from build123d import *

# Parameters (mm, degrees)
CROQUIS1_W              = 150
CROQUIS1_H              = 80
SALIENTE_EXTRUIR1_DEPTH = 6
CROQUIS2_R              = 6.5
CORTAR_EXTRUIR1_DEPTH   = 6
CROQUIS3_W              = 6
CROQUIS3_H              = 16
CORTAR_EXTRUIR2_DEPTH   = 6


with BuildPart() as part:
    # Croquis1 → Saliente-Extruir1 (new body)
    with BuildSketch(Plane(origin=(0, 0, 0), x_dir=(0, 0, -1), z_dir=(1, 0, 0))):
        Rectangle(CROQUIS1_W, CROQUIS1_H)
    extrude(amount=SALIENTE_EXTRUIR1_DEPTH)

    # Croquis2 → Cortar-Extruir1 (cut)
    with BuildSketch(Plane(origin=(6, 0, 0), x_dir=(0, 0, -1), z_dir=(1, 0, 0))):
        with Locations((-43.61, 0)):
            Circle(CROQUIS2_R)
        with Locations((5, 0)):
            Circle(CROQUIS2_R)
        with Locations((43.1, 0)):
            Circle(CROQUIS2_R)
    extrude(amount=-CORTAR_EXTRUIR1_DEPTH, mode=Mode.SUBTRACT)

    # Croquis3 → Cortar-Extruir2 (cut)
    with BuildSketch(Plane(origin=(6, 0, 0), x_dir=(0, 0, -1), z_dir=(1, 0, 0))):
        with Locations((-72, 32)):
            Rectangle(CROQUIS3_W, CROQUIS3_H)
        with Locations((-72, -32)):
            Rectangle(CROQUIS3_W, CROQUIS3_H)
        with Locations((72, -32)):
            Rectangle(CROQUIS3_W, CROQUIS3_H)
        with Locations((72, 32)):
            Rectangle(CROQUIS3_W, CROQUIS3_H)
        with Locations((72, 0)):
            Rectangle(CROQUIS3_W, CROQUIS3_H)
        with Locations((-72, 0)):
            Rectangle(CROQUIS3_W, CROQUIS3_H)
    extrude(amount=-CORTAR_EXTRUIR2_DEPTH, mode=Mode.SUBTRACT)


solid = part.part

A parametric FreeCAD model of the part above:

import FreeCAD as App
import Part
import Sketcher
from FreeCAD import Vector
Q = App.Units.Quantity


def add_polygon(sketch, points):
    """Adds a closed chain of lines whose ends are joined by coincident constraints."""
    first, n = sketch.GeometryCount, len(points)
    for a, b in zip(points, points[1:] + points[:1]):
        sketch.addGeometry(Part.LineSegment(App.Vector(*a, 0), App.Vector(*b, 0)), False)
    for i in range(n):
        sketch.addConstraint(Sketcher.Constraint("Coincident", first + i, 2, first + (i + 1) % n, 1))

doc = App.newDocument("Part")
body = doc.addObject("PartDesign::Body", "Body")

sketch1 = doc.addObject("Sketcher::SketchObject", "Sketch")
body.addObject(sketch1)
sketch1.AttachmentSupport = (doc.YZ_Plane, [""])
sketch1.MapMode = "FlatFace"
add_polygon(sketch1, [(40, 75), (-40, 75), (-40, -75), (40, -75)])
sketch1.addConstraint(Sketcher.Constraint("Horizontal", 0))
sketch1.addConstraint(Sketcher.Constraint("Vertical", 1))
sketch1.addConstraint(Sketcher.Constraint("Horizontal", 2))
sketch1.addConstraint(Sketcher.Constraint("Vertical", 3))
sketch1.addConstraint(Sketcher.Constraint("Symmetric", 0, 2, 2, 2, -1, 1))
sketch1.addConstraint(Sketcher.Constraint("DistanceX", 0, 2, 0, 1, Q("80 mm")))
sketch1.addConstraint(Sketcher.Constraint("DistanceY", 1, 2, 1, 1, Q("150 mm")))
pad1 = doc.addObject("PartDesign::Pad", "Pad")
body.addObject(pad1)
pad1.Profile = sketch1
pad1.Length = 6

sketch2 = doc.addObject("Sketcher::SketchObject", "Sketch001")
body.addObject(sketch2)
sketch2.AttachmentSupport = (doc.YZ_Plane, [""])
sketch2.MapMode = "FlatFace"
sketch2.AttachmentOffset = App.Placement(Vector(0, 0, 6), App.Rotation())
sketch2.addGeometry(Part.Circle(Vector(0, 44, 0), Vector(0, 0, 1), 6), False)
sketch2.addGeometry(Part.Circle(Vector(0, -5, 0), Vector(0, 0, 1), 6), False)
sketch2.addGeometry(Part.Circle(Vector(0, -43, 0), Vector(0, 0, 1), 6), False)
sketch2.addConstraint(Sketcher.Constraint("Equal", 0, 1))
sketch2.addConstraint(Sketcher.Constraint("Equal", 1, 2))
sketch2.addConstraint(Sketcher.Constraint("PointOnObject", 0, 3, -2))
sketch2.addConstraint(Sketcher.Constraint("PointOnObject", 1, 3, -2))
sketch2.addConstraint(Sketcher.Constraint("PointOnObject", 2, 3, -2))
sketch2.addConstraint(Sketcher.Constraint("Diameter", 0, Q("13 mm")))
sketch2.addConstraint(Sketcher.Constraint("DistanceY", 1, 3, -1, 1, Q("5 mm")))
sketch2.addConstraint(Sketcher.Constraint("DistanceY", 2, 3, -1, 1, Q("43.1 mm")))
sketch2.addConstraint(Sketcher.Constraint("DistanceY", -1, 1, 0, 3, Q("43.61 mm")))
pocket1 = doc.addObject("PartDesign::Pocket", "Pocket")
body.addObject(pocket1)
pocket1.Profile = sketch2
pocket1.Length = 6

sketch3 = doc.addObject("Sketcher::SketchObject", "Sketch002")
body.addObject(sketch3)
sketch3.AttachmentSupport = (doc.YZ_Plane, [""])
sketch3.MapMode = "FlatFace"
sketch3.AttachmentOffset = App.Placement(Vector(0, 0, 6), App.Rotation())
add_polygon(sketch3, [(40, 75), (24, 75), (24, 69), (40, 69)])
add_polygon(sketch3, [(-24, 75), (-40, 75), (-40, 69), (-24, 69)])
add_polygon(sketch3, [(-24, -69), (-40, -69), (-40, -75), (-24, -75)])
add_polygon(sketch3, [(40, -69), (24, -69), (24, -75), (40, -75)])
add_polygon(sketch3, [(8, -69), (-8, -69), (-8, -75), (8, -75)])
add_polygon(sketch3, [(8, 75), (-8, 75), (-8, 69), (8, 69)])
sketch3.addConstraint(Sketcher.Constraint("Horizontal", 0))
sketch3.addConstraint(Sketcher.Constraint("Vertical", 1))
sketch3.addConstraint(Sketcher.Constraint("Horizontal", 2))
sketch3.addConstraint(Sketcher.Constraint("Vertical", 3))
sketch3.addConstraint(Sketcher.Constraint("Horizontal", 4))
sketch3.addConstraint(Sketcher.Constraint("Vertical", 5))
sketch3.addConstraint(Sketcher.Constraint("Horizontal", 6))
sketch3.addConstraint(Sketcher.Constraint("Vertical", 7))
sketch3.addConstraint(Sketcher.Constraint("Horizontal", 8))
sketch3.addConstraint(Sketcher.Constraint("Vertical", 9))
sketch3.addConstraint(Sketcher.Constraint("Horizontal", 10))
sketch3.addConstraint(Sketcher.Constraint("Vertical", 11))
sketch3.addConstraint(Sketcher.Constraint("Horizontal", 12))
sketch3.addConstraint(Sketcher.Constraint("Vertical", 13))
sketch3.addConstraint(Sketcher.Constraint("Horizontal", 14))
sketch3.addConstraint(Sketcher.Constraint("Vertical", 15))
sketch3.addConstraint(Sketcher.Constraint("Horizontal", 16))
sketch3.addConstraint(Sketcher.Constraint("Vertical", 17))
sketch3.addConstraint(Sketcher.Constraint("Horizontal", 18))
sketch3.addConstraint(Sketcher.Constraint("Vertical", 19))
sketch3.addConstraint(Sketcher.Constraint("Horizontal", 20))
sketch3.addConstraint(Sketcher.Constraint("Vertical", 21))
sketch3.addConstraint(Sketcher.Constraint("Horizontal", 22))
sketch3.addConstraint(Sketcher.Constraint("Vertical", 23))
sketch3.addConstraint(Sketcher.Constraint("Symmetric", 2, 2, 8, 2, -1, 1))
sketch3.addConstraint(Sketcher.Constraint("Symmetric", 0, 2, 10, 2, -1, 1))
sketch3.addConstraint(Sketcher.Constraint("Symmetric", 6, 2, 12, 2, -1, 1))
sketch3.addConstraint(Sketcher.Constraint("Symmetric", 4, 2, 14, 2, -1, 1))
sketch3.addConstraint(Sketcher.Constraint("Symmetric", 18, 2, 20, 2, -1, 1))
sketch3.addConstraint(Sketcher.Constraint("Symmetric", 16, 2, 22, 2, -1, 1))
sketch3.addConstraint(Sketcher.Constraint("Symmetric", 3, 2, 4, 2, -2))
sketch3.addConstraint(Sketcher.Constraint("Symmetric", 1, 2, 6, 2, -2))
sketch3.addConstraint(Sketcher.Constraint("Horizontal", 15, 2, 16, 2))
sketch3.addConstraint(Sketcher.Constraint("Horizontal", 14, 2, 17, 2))
sketch3.addConstraint(Sketcher.Constraint("Vertical", 17, 2, 20, 2))
sketch3.addConstraint(Sketcher.Constraint("Equal", 14, 16))
sketch3.addConstraint(Sketcher.Constraint("DistanceX", 0, 2, 0, 1, Q("16 mm")))
sketch3.addConstraint(Sketcher.Constraint("DistanceY", 1, 2, 1, 1, Q("6 mm")))
sketch3.addConstraint(Sketcher.Constraint("DistanceX", -1, 1, 0, 2, Q("24 mm")))
sketch3.addConstraint(Sketcher.Constraint("DistanceY", -1, 1, 0, 2, Q("75 mm")))
pocket2 = doc.addObject("PartDesign::Pocket", "Pocket001")
body.addObject(pocket2)
pocket2.Profile = sketch3
pocket2.Length = 6

doc.recompute()
